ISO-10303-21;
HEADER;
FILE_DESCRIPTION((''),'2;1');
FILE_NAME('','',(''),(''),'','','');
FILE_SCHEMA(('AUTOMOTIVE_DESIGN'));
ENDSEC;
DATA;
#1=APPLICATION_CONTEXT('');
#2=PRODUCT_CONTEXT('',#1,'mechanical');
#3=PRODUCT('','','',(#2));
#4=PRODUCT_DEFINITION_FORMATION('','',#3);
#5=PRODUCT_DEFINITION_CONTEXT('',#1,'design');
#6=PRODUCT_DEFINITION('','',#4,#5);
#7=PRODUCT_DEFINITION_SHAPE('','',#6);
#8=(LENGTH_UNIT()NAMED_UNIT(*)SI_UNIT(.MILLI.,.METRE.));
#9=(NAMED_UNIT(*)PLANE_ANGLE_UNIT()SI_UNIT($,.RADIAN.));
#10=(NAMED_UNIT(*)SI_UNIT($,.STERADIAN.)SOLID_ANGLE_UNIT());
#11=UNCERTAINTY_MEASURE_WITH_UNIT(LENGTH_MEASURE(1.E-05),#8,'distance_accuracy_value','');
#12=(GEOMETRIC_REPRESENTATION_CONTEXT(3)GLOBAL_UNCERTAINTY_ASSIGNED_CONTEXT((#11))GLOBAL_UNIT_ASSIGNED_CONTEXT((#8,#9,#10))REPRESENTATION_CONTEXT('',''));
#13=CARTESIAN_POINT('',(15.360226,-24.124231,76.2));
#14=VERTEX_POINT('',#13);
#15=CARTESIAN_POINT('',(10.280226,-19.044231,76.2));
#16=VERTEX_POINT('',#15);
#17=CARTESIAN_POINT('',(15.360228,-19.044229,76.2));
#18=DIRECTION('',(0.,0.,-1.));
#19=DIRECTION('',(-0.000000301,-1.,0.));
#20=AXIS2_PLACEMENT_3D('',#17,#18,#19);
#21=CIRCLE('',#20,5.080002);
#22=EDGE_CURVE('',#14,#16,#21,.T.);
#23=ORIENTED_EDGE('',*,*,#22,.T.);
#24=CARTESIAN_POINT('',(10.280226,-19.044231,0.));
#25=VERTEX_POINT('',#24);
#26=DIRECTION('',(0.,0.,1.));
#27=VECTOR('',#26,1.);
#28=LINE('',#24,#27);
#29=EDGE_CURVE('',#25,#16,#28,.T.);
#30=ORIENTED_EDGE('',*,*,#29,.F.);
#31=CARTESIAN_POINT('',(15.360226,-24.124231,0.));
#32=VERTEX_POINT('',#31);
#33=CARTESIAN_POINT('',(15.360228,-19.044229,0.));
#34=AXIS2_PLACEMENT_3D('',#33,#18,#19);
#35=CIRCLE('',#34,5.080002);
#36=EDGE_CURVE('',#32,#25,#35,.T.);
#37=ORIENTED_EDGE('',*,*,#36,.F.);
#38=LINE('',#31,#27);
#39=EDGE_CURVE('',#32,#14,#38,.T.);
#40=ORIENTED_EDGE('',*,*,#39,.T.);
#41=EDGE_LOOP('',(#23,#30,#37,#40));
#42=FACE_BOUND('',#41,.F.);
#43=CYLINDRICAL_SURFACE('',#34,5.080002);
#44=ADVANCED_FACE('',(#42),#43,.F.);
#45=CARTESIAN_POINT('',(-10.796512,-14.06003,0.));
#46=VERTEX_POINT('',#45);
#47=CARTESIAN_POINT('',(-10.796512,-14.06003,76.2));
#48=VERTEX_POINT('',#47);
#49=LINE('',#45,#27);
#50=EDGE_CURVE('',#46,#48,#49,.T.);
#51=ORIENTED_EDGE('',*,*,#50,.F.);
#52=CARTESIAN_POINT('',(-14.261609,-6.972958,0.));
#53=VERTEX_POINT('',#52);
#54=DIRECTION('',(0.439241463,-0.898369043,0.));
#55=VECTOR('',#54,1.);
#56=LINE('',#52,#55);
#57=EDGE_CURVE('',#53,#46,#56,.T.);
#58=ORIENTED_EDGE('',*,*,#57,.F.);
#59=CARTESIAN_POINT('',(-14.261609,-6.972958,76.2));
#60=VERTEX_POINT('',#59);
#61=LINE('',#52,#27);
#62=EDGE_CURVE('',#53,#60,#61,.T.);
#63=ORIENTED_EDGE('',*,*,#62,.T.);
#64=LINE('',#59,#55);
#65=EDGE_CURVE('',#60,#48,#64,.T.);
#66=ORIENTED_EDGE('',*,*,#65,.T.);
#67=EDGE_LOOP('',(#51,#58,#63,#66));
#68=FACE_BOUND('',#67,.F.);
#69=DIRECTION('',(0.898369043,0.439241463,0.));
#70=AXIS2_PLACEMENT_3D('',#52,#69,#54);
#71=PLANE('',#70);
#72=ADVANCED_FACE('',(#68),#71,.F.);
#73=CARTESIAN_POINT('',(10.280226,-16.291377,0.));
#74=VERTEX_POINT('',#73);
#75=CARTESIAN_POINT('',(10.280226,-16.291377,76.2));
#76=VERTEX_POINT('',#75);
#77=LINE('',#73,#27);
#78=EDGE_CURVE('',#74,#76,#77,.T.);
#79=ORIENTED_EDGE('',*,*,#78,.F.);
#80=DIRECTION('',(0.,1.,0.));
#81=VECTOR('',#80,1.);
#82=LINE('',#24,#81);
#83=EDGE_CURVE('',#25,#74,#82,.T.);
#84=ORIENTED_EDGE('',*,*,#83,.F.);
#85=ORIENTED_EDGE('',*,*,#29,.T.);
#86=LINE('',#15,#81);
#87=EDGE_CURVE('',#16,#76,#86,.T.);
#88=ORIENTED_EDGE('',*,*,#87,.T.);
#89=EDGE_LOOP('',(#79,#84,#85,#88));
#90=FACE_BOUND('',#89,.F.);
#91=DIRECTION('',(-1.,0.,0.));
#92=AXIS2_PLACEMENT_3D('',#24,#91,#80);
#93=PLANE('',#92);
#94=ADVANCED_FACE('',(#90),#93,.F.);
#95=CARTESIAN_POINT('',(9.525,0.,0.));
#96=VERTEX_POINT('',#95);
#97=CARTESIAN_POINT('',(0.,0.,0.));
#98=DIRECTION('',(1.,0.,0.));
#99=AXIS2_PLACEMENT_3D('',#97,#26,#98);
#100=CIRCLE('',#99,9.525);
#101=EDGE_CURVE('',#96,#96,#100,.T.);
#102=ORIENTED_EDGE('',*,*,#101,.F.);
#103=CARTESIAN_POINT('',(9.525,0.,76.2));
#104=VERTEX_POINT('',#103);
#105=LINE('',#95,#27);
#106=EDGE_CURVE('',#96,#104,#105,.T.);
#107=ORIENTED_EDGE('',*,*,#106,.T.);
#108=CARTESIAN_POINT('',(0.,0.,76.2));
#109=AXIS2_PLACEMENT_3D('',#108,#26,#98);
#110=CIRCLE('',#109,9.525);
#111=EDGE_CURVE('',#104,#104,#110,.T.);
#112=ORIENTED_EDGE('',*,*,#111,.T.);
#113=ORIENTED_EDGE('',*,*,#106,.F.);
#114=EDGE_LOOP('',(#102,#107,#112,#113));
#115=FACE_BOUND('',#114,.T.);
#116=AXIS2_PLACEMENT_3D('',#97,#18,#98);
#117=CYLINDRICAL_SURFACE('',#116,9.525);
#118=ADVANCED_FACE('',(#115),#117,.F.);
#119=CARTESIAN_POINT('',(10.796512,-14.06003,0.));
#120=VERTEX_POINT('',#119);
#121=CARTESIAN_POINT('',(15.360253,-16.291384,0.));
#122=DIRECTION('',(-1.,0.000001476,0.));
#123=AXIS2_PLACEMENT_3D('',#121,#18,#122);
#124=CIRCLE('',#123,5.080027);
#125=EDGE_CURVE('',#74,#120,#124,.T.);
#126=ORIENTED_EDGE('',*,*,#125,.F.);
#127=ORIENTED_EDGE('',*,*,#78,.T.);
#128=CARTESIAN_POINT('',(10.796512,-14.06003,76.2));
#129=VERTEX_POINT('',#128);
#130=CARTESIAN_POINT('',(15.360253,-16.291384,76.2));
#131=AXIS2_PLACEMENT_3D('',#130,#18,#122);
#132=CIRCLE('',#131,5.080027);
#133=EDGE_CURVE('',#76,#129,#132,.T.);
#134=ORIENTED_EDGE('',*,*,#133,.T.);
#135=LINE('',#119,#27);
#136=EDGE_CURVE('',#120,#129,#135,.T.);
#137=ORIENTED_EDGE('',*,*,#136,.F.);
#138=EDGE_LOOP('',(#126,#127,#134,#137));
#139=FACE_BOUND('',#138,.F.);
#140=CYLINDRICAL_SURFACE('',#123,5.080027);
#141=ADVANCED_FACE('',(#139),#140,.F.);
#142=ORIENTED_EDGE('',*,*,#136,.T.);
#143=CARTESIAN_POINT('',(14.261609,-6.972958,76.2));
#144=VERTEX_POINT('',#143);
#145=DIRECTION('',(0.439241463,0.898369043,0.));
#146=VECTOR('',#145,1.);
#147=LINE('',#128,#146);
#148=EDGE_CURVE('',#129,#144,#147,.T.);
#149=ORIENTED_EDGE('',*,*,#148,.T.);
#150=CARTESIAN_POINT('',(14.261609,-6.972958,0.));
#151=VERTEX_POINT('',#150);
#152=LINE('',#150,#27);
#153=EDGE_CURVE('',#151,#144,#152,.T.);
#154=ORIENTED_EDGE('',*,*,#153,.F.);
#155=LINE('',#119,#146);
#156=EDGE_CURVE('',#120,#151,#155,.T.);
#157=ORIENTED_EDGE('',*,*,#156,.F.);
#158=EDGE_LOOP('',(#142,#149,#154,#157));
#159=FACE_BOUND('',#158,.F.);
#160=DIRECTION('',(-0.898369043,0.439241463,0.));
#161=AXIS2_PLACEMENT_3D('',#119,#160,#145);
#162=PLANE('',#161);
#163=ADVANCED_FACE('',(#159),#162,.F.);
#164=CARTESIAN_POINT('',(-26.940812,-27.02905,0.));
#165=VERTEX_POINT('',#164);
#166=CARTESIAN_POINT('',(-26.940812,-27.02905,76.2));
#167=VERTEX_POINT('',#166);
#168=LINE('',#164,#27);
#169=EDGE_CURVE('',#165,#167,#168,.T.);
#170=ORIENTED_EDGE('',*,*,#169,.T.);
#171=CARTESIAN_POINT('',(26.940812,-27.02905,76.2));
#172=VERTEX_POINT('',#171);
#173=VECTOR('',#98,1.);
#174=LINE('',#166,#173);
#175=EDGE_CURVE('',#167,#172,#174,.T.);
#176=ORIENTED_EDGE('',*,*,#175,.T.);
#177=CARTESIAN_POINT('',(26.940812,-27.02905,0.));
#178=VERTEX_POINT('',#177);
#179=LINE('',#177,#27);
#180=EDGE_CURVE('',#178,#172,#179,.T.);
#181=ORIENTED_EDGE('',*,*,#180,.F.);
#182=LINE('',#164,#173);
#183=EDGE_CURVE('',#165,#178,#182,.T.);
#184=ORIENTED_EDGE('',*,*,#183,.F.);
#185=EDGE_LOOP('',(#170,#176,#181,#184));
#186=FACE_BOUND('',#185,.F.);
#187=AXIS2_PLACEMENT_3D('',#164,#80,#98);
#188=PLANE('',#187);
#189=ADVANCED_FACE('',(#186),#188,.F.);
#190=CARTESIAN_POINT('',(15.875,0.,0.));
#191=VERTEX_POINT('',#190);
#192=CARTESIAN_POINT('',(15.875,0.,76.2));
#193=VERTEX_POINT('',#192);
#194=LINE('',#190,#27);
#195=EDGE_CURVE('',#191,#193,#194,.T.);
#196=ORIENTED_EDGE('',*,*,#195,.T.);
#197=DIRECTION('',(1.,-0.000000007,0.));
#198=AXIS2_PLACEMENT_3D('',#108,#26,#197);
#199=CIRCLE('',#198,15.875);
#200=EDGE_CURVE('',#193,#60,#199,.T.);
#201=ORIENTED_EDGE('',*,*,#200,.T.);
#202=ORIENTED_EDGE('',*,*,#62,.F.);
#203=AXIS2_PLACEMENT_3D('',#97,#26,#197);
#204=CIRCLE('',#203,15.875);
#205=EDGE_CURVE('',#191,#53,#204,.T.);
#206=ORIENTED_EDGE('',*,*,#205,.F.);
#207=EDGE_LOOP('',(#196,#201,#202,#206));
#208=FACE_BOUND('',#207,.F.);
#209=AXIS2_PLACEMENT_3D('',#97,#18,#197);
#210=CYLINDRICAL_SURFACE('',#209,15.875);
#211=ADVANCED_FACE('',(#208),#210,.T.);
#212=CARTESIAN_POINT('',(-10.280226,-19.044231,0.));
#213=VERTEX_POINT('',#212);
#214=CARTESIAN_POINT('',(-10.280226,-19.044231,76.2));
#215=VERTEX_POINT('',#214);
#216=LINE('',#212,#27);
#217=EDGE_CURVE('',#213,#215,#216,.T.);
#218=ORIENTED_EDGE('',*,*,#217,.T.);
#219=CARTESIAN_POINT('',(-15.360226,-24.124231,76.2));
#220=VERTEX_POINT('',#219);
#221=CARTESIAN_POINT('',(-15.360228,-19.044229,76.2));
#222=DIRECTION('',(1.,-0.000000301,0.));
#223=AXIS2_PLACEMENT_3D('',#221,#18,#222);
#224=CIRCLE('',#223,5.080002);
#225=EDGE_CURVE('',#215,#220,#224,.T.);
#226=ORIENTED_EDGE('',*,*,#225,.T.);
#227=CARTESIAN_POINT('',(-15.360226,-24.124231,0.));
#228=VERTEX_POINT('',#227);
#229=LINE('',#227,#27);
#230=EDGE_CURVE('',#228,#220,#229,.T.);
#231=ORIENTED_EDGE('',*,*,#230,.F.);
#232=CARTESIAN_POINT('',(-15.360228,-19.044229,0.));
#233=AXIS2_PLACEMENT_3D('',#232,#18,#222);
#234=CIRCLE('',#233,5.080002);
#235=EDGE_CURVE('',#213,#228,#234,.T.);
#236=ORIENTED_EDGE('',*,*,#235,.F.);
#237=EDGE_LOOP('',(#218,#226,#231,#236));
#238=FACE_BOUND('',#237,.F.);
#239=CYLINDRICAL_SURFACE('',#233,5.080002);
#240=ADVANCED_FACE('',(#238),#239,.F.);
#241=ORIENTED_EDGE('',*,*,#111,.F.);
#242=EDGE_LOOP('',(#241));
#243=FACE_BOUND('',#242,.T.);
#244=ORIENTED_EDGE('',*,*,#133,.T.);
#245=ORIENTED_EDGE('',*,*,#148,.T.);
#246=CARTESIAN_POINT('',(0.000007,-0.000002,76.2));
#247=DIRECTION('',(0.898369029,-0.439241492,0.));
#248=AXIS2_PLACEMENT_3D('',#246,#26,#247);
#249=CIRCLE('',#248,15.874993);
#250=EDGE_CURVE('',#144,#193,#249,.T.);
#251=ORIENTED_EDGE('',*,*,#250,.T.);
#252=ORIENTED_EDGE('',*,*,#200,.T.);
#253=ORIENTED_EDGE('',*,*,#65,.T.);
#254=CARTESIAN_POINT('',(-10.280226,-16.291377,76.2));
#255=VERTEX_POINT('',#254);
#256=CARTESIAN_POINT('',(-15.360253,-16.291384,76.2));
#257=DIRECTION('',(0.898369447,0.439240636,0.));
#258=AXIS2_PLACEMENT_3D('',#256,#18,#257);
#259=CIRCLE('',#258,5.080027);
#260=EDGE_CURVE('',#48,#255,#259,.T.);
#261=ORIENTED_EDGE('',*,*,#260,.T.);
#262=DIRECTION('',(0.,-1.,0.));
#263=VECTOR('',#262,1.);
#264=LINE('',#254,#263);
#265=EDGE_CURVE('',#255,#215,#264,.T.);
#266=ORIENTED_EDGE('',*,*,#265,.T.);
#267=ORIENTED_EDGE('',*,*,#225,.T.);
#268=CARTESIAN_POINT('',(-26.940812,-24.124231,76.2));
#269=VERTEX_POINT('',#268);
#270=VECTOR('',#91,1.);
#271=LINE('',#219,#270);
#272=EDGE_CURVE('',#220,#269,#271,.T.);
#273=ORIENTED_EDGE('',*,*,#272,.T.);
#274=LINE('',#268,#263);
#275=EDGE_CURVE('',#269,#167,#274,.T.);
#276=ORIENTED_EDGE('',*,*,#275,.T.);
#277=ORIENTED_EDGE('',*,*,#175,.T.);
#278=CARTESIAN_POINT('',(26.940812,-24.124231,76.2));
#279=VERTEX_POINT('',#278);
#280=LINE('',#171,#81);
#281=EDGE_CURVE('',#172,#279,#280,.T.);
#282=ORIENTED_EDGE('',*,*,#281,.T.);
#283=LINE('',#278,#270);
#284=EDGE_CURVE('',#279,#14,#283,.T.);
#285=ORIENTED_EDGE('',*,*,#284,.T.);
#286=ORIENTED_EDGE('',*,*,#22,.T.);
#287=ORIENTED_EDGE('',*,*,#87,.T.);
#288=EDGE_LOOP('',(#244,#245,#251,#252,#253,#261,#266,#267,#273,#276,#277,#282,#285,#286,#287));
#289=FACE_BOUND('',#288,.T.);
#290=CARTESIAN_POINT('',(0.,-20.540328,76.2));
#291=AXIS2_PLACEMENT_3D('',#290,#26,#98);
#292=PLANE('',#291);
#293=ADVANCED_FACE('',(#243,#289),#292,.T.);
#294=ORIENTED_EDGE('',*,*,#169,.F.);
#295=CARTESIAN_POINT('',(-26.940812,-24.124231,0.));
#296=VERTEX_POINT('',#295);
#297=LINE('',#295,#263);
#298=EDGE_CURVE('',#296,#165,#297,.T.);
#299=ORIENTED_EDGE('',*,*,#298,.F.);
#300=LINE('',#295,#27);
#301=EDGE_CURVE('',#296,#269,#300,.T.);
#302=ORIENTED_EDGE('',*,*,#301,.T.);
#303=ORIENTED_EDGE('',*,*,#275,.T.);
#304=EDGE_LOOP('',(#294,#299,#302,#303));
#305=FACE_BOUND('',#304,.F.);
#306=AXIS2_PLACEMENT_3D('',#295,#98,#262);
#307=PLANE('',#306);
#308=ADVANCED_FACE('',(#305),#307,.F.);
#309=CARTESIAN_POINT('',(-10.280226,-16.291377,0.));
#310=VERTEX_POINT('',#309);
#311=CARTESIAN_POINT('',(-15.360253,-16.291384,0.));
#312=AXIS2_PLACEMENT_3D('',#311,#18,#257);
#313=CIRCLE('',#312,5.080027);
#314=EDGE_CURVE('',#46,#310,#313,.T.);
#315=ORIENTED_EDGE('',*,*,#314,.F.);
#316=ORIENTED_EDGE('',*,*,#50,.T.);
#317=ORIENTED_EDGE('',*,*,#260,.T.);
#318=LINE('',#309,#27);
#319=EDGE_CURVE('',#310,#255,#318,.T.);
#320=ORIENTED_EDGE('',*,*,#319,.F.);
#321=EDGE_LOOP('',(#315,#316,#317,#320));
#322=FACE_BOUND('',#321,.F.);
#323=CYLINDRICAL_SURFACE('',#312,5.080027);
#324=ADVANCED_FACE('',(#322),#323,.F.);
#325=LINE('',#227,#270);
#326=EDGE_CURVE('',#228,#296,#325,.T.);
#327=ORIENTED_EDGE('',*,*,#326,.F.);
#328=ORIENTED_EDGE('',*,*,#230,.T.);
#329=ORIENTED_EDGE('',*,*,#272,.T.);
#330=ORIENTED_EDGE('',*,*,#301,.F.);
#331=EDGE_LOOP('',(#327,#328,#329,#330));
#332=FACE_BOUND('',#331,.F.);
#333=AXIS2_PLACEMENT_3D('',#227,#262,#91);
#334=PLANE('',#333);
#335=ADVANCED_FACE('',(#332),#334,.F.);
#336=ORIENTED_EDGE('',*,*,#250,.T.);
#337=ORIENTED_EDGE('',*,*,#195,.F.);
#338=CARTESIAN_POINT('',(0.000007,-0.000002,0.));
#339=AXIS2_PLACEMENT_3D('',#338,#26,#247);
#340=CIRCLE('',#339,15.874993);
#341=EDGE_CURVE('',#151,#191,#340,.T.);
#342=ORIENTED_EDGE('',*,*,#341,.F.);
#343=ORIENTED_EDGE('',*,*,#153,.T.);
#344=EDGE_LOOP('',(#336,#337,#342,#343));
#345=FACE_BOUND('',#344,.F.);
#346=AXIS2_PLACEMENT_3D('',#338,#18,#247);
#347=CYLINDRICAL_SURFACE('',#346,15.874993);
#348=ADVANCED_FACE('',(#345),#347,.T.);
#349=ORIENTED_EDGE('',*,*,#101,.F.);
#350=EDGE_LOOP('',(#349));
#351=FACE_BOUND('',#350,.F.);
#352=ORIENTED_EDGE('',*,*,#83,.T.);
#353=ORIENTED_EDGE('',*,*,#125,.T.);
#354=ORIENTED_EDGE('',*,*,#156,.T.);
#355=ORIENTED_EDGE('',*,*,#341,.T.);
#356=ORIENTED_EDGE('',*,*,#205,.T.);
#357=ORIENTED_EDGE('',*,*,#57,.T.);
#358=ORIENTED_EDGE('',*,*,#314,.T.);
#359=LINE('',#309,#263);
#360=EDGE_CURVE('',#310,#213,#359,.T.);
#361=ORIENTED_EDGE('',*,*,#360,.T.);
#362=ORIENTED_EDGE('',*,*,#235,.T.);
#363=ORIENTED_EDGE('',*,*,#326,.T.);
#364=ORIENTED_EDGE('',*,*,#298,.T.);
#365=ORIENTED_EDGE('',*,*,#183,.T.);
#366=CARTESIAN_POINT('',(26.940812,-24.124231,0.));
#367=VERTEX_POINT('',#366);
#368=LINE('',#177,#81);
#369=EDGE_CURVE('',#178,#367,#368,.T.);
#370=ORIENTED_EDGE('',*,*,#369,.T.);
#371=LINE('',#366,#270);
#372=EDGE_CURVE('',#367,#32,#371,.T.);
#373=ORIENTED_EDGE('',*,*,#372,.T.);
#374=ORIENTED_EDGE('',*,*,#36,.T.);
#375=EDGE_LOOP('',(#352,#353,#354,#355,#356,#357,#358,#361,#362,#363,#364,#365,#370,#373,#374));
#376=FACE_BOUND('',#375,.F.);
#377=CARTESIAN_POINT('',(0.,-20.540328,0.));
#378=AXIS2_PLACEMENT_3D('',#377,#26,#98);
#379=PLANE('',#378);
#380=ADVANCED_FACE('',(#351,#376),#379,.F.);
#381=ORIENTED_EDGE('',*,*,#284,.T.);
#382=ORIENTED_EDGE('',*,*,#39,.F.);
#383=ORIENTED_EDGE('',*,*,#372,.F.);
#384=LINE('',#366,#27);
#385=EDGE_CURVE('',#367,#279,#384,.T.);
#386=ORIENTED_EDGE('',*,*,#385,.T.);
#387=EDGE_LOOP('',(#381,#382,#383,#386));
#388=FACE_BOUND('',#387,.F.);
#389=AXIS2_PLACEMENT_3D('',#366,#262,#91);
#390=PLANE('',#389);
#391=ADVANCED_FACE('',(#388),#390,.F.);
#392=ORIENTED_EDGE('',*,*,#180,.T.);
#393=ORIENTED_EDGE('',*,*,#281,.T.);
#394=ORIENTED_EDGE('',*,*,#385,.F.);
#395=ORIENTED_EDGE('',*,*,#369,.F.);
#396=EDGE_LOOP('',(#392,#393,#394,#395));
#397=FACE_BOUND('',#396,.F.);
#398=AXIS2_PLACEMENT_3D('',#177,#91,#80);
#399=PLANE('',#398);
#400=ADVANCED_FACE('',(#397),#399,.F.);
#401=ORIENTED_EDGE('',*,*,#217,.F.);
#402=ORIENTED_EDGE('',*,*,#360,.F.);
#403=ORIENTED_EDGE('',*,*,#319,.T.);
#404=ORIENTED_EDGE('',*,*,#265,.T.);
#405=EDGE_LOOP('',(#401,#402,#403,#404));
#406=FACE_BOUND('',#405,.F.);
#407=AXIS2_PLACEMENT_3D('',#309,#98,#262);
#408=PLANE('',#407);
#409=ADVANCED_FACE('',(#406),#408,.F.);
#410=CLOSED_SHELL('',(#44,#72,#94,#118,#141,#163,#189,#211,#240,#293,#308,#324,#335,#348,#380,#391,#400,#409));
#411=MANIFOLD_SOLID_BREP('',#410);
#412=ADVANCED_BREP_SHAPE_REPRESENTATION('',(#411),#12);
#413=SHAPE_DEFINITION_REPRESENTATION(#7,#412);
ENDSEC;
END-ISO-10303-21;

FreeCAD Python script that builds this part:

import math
import FreeCAD as App
import Part
import Sketcher
Q = App.Units.Quantity

doc = App.newDocument("Part")
body = doc.addObject("PartDesign::Body", "Body")

# Sketch on XY plane
sketch1 = doc.addObject("Sketcher::SketchObject", "Sketch")
body.addObject(sketch1)
sketch1.AttachmentSupport = (doc.XY_Plane, [""])
sketch1.MapMode = "FlatFace"
sketch1.addGeometry([
    Part.LineSegment(App.Vector(-14.3, -7, 0), App.Vector(-10.8, -14.1, 0)),  # 0
    Part.ArcOfCircle(Part.Circle(App.Vector(-15.4, -16.3, 0), App.Vector(0, 0, 1), 5.1), math.radians(0), math.radians(26)),  # 1
    Part.LineSegment(App.Vector(-10.3, -16.3, 0), App.Vector(-10.3, -19, 0)),  # 2
    Part.ArcOfCircle(Part.Circle(App.Vector(-15.4, -19, 0), App.Vector(0, 0, 1), 5.1), math.radians(-90), math.radians(0)),  # 3
    Part.LineSegment(App.Vector(-15.4, -24.1, 0), App.Vector(-26.9, -24.1, 0)),  # 4
    Part.LineSegment(App.Vector(-26.9, -24.1, 0), App.Vector(-26.9, -27, 0)),  # 5
    Part.LineSegment(App.Vector(-26.9, -27, 0), App.Vector(26.9, -27, 0)),  # 6
    Part.LineSegment(App.Vector(26.9, -27, 0), App.Vector(26.9, -24.1, 0)),  # 7
    Part.LineSegment(App.Vector(26.9, -24.1, 0), App.Vector(15.4, -24.1, 0)),  # 8
    Part.ArcOfCircle(Part.Circle(App.Vector(15.4, -19, 0), App.Vector(0, 0, 1), 5.1), math.radians(-180), math.radians(-90)),  # 9
    Part.LineSegment(App.Vector(10.3, -19, 0), App.Vector(10.3, -16.3, 0)),  # 10
    Part.ArcOfCircle(Part.Circle(App.Vector(15.4, -16.3, 0), App.Vector(0, 0, 1), 5.1), math.radians(154), math.radians(180)),  # 11
    Part.LineSegment(App.Vector(10.8, -14.1, 0), App.Vector(14.3, -7, 0)),  # 12
    Part.ArcOfCircle(Part.Circle(App.Vector(0, 0, 0), App.Vector(0, 0, 1), 15.9), math.radians(-26), math.radians(0)),  # 13
    Part.ArcOfCircle(Part.Circle(App.Vector(0, 0, 0), App.Vector(0, 0, 1), 15.9), math.radians(0), math.radians(206)),  # 14
    Part.Circle(App.Vector(0, 0, 0), App.Vector(0, 0, 1), 9.5),  # 15
], False)
sketch1.addConstraint([
    Sketcher.Constraint("Tangent", 0, 2, 1, 2),
    Sketcher.Constraint("Tangent", 1, 1, 2, 1),
    Sketcher.Constraint("Tangent", 2, 2, 3, 2),
    Sketcher.Constraint("Tangent", 3, 1, 4, 1),
    Sketcher.Constraint("Coincident", 4, 2, 5, 1),
    Sketcher.Constraint("Coincident", 5, 2, 6, 1),
    Sketcher.Constraint("Coincident", 6, 2, 7, 1),
    Sketcher.Constraint("Coincident", 7, 2, 8, 1),
    Sketcher.Constraint("Tangent", 8, 2, 9, 2),
    Sketcher.Constraint("Tangent", 9, 1, 10, 1),
    Sketcher.Constraint("Tangent", 10, 2, 11, 2),
    Sketcher.Constraint("Tangent", 11, 1, 12, 1),
    Sketcher.Constraint("Tangent", 12, 2, 13, 1),
    Sketcher.Constraint("Tangent", 13, 2, 14, 1),
    Sketcher.Constraint("Tangent", 14, 2, 0, 1),
    Sketcher.Constraint("Vertical", 2),
    Sketcher.Constraint("Horizontal", 4),
    Sketcher.Constraint("Vertical", 5),
    Sketcher.Constraint("Horizontal", 6),
    Sketcher.Constraint("Vertical", 7),
    Sketcher.Constraint("Horizontal", 8),
    Sketcher.Constraint("Vertical", 10),
    Sketcher.Constraint("Coincident", 13, 3, -1, 1),
    Sketcher.Constraint("Coincident", 15, 3, -1, 1),
    Sketcher.Constraint("Equal", 3, 9),
    Sketcher.Constraint("Equal", 1, 11),
    Sketcher.Constraint("Symmetric", 3, 3, 9, 3, -2),
    Sketcher.Constraint("Symmetric", 0, 2, 11, 1, -2),
    Sketcher.Constraint("PointOnObject", 13, 2, -1),
    Sketcher.Constraint("Equal", 4, 8),
    Sketcher.Constraint("Radius", 3, Q("0.2000001 in")),
    Sketcher.Constraint("Diameter", 15, Q("0.75 in")),
    Sketcher.Constraint("Radius", 14, Q("0.625 in")),
    Sketcher.Constraint("Radius", 1, 5.080027),
    Sketcher.Constraint("DistanceY", 5, 2, 5, 1, 2.904819),
    Sketcher.Constraint("DistanceY", 3, 3, 0, 2, 4.984199),
    Sketcher.Constraint("Distance", 0, 7.88882),
    Sketcher.Constraint("DistanceX", 4, 2, 4, 1, 11.580586),
    Sketcher.Constraint("DistanceX", 6, 1, 6, 2, 53.881624),
])
pad1 = doc.addObject("PartDesign::Pad", "Pad")
body.addObject(pad1)
pad1.Profile = sketch1
pad1.Length = Q("3 in")

doc.recompute()
